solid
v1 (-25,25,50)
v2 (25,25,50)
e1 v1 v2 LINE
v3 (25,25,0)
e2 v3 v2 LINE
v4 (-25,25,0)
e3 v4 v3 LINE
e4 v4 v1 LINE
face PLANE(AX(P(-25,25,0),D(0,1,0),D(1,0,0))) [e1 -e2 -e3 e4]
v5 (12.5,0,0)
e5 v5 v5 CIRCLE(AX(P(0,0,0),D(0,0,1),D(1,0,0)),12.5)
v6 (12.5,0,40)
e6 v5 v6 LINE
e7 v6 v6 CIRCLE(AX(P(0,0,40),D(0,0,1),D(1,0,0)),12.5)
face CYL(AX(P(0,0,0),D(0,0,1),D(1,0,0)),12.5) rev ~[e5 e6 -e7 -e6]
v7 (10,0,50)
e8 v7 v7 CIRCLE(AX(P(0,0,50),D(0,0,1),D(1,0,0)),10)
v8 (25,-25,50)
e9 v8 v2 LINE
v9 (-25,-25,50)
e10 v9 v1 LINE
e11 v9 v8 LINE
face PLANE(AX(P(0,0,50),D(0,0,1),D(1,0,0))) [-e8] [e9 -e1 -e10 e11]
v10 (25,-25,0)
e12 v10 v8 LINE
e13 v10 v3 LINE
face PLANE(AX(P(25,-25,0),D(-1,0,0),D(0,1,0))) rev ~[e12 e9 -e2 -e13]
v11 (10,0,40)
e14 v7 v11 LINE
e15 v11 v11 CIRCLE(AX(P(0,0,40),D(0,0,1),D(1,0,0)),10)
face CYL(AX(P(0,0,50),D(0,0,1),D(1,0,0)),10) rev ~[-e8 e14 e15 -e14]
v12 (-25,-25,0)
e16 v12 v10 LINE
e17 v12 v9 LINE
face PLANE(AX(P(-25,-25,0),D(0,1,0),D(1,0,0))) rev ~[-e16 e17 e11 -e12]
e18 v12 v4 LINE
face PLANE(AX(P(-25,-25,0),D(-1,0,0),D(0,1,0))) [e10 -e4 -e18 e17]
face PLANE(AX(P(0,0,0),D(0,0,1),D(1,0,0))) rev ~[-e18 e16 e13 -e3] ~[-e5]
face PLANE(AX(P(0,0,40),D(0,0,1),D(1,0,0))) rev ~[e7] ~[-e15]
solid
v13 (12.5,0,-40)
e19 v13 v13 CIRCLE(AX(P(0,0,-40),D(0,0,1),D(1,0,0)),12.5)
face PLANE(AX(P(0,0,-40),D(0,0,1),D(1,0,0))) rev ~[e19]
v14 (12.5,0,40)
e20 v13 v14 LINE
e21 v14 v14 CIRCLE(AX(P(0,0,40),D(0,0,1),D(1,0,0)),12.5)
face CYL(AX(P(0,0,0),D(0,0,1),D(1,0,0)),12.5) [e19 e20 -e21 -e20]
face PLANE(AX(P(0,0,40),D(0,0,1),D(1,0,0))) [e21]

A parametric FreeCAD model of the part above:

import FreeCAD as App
import Part
import Sketcher

V = App.Vector

doc = App.newDocument("Part")
body = doc.addObject("PartDesign::Body", "Body")

# Sketch on XY plane
sketch1 = body.newObject("Sketcher::SketchObject", "Sketch")
sketch1.AttachmentSupport = (doc.getObject("XY_Plane"), [""])
sketch1.MapMode = "FlatFace"
sketch1.addGeometry([
    Part.LineSegment(V(-25, 25, 0), V(-25, -25, 0)),
    Part.LineSegment(V(-25, -25, 0), V(25, -25, 0)),
    Part.LineSegment(V(25, -25, 0), V(25, 25, 0)),
    Part.LineSegment(V(25, 25, 0), V(-25, 25, 0)),
], False)
sketch1.addConstraint([
    Sketcher.Constraint("Coincident", 0, 2, 1, 1),
    Sketcher.Constraint("Coincident", 1, 2, 2, 1),
    Sketcher.Constraint("Coincident", 2, 2, 3, 1),
    Sketcher.Constraint("Coincident", 3, 2, 0, 1),
    Sketcher.Constraint("Vertical", 0),
    Sketcher.Constraint("Horizontal", 1),
    Sketcher.Constraint("Vertical", 2),
    Sketcher.Constraint("Horizontal", 3),
    Sketcher.Constraint("Symmetric", 0, 2, 2, 2, -1, 1),
    Sketcher.Constraint("Equal", 3, 0),
    Sketcher.Constraint("DistanceX", 1, 1, 1, 2, 50.0),
])
pad1 = body.newObject("PartDesign::Pad", "Pad")
pad1.Profile = sketch1
pad1.Length = 50

# Sketch on XY plane
sketch2 = body.newObject("Sketcher::SketchObject", "Sketch001")
sketch2.AttachmentSupport = (doc.getObject("XY_Plane"), [""])
sketch2.MapMode = "FlatFace"
sketch2.AttachmentOffset = App.Placement(V(0, 0, 50), App.Rotation())
sketch2.addGeometry(Part.Circle(V(0, 0, 0), V(0, 0, 1), 10), False)
sketch2.addConstraint([
    Sketcher.Constraint("Coincident", 0, 3, -1, 1),
    Sketcher.Constraint("Diameter", 0, 20.0),
])
pocket1 = body.newObject("PartDesign::Pocket", "Pocket")
pocket1.Profile = sketch2
pocket1.Length = 25
body2 = doc.addObject("PartDesign::Body", "Body001")

# Sketch on XY plane
sketch3 = body2.newObject("Sketcher::SketchObject", "Sketch002")
sketch3.AttachmentSupport = (doc.getObject("XY_Plane001"), [""])
sketch3.MapMode = "FlatFace"
sketch3.addGeometry(Part.Circle(V(0, 0, 0), V(0, 0, 1), 12), False)
sketch3.addConstraint([
    Sketcher.Constraint("Coincident", 0, 3, -1, 1),
    Sketcher.Constraint("Diameter", 0, 25.0),
])
pad2 = body2.newObject("PartDesign::Pad", "Pad001")
pad2.Profile = sketch3
pad2.Length = 80
pad2.Midplane = True
doc.recompute()

body3 = doc.addObject("PartDesign::Body", "Body002")
body3.BaseFeature = body2
boolean = body.newObject("PartDesign::Boolean", "Boolean")
boolean.Type = "Cut"
boolean.addObjects([body3])
doc.recompute()

doc.recompute()
